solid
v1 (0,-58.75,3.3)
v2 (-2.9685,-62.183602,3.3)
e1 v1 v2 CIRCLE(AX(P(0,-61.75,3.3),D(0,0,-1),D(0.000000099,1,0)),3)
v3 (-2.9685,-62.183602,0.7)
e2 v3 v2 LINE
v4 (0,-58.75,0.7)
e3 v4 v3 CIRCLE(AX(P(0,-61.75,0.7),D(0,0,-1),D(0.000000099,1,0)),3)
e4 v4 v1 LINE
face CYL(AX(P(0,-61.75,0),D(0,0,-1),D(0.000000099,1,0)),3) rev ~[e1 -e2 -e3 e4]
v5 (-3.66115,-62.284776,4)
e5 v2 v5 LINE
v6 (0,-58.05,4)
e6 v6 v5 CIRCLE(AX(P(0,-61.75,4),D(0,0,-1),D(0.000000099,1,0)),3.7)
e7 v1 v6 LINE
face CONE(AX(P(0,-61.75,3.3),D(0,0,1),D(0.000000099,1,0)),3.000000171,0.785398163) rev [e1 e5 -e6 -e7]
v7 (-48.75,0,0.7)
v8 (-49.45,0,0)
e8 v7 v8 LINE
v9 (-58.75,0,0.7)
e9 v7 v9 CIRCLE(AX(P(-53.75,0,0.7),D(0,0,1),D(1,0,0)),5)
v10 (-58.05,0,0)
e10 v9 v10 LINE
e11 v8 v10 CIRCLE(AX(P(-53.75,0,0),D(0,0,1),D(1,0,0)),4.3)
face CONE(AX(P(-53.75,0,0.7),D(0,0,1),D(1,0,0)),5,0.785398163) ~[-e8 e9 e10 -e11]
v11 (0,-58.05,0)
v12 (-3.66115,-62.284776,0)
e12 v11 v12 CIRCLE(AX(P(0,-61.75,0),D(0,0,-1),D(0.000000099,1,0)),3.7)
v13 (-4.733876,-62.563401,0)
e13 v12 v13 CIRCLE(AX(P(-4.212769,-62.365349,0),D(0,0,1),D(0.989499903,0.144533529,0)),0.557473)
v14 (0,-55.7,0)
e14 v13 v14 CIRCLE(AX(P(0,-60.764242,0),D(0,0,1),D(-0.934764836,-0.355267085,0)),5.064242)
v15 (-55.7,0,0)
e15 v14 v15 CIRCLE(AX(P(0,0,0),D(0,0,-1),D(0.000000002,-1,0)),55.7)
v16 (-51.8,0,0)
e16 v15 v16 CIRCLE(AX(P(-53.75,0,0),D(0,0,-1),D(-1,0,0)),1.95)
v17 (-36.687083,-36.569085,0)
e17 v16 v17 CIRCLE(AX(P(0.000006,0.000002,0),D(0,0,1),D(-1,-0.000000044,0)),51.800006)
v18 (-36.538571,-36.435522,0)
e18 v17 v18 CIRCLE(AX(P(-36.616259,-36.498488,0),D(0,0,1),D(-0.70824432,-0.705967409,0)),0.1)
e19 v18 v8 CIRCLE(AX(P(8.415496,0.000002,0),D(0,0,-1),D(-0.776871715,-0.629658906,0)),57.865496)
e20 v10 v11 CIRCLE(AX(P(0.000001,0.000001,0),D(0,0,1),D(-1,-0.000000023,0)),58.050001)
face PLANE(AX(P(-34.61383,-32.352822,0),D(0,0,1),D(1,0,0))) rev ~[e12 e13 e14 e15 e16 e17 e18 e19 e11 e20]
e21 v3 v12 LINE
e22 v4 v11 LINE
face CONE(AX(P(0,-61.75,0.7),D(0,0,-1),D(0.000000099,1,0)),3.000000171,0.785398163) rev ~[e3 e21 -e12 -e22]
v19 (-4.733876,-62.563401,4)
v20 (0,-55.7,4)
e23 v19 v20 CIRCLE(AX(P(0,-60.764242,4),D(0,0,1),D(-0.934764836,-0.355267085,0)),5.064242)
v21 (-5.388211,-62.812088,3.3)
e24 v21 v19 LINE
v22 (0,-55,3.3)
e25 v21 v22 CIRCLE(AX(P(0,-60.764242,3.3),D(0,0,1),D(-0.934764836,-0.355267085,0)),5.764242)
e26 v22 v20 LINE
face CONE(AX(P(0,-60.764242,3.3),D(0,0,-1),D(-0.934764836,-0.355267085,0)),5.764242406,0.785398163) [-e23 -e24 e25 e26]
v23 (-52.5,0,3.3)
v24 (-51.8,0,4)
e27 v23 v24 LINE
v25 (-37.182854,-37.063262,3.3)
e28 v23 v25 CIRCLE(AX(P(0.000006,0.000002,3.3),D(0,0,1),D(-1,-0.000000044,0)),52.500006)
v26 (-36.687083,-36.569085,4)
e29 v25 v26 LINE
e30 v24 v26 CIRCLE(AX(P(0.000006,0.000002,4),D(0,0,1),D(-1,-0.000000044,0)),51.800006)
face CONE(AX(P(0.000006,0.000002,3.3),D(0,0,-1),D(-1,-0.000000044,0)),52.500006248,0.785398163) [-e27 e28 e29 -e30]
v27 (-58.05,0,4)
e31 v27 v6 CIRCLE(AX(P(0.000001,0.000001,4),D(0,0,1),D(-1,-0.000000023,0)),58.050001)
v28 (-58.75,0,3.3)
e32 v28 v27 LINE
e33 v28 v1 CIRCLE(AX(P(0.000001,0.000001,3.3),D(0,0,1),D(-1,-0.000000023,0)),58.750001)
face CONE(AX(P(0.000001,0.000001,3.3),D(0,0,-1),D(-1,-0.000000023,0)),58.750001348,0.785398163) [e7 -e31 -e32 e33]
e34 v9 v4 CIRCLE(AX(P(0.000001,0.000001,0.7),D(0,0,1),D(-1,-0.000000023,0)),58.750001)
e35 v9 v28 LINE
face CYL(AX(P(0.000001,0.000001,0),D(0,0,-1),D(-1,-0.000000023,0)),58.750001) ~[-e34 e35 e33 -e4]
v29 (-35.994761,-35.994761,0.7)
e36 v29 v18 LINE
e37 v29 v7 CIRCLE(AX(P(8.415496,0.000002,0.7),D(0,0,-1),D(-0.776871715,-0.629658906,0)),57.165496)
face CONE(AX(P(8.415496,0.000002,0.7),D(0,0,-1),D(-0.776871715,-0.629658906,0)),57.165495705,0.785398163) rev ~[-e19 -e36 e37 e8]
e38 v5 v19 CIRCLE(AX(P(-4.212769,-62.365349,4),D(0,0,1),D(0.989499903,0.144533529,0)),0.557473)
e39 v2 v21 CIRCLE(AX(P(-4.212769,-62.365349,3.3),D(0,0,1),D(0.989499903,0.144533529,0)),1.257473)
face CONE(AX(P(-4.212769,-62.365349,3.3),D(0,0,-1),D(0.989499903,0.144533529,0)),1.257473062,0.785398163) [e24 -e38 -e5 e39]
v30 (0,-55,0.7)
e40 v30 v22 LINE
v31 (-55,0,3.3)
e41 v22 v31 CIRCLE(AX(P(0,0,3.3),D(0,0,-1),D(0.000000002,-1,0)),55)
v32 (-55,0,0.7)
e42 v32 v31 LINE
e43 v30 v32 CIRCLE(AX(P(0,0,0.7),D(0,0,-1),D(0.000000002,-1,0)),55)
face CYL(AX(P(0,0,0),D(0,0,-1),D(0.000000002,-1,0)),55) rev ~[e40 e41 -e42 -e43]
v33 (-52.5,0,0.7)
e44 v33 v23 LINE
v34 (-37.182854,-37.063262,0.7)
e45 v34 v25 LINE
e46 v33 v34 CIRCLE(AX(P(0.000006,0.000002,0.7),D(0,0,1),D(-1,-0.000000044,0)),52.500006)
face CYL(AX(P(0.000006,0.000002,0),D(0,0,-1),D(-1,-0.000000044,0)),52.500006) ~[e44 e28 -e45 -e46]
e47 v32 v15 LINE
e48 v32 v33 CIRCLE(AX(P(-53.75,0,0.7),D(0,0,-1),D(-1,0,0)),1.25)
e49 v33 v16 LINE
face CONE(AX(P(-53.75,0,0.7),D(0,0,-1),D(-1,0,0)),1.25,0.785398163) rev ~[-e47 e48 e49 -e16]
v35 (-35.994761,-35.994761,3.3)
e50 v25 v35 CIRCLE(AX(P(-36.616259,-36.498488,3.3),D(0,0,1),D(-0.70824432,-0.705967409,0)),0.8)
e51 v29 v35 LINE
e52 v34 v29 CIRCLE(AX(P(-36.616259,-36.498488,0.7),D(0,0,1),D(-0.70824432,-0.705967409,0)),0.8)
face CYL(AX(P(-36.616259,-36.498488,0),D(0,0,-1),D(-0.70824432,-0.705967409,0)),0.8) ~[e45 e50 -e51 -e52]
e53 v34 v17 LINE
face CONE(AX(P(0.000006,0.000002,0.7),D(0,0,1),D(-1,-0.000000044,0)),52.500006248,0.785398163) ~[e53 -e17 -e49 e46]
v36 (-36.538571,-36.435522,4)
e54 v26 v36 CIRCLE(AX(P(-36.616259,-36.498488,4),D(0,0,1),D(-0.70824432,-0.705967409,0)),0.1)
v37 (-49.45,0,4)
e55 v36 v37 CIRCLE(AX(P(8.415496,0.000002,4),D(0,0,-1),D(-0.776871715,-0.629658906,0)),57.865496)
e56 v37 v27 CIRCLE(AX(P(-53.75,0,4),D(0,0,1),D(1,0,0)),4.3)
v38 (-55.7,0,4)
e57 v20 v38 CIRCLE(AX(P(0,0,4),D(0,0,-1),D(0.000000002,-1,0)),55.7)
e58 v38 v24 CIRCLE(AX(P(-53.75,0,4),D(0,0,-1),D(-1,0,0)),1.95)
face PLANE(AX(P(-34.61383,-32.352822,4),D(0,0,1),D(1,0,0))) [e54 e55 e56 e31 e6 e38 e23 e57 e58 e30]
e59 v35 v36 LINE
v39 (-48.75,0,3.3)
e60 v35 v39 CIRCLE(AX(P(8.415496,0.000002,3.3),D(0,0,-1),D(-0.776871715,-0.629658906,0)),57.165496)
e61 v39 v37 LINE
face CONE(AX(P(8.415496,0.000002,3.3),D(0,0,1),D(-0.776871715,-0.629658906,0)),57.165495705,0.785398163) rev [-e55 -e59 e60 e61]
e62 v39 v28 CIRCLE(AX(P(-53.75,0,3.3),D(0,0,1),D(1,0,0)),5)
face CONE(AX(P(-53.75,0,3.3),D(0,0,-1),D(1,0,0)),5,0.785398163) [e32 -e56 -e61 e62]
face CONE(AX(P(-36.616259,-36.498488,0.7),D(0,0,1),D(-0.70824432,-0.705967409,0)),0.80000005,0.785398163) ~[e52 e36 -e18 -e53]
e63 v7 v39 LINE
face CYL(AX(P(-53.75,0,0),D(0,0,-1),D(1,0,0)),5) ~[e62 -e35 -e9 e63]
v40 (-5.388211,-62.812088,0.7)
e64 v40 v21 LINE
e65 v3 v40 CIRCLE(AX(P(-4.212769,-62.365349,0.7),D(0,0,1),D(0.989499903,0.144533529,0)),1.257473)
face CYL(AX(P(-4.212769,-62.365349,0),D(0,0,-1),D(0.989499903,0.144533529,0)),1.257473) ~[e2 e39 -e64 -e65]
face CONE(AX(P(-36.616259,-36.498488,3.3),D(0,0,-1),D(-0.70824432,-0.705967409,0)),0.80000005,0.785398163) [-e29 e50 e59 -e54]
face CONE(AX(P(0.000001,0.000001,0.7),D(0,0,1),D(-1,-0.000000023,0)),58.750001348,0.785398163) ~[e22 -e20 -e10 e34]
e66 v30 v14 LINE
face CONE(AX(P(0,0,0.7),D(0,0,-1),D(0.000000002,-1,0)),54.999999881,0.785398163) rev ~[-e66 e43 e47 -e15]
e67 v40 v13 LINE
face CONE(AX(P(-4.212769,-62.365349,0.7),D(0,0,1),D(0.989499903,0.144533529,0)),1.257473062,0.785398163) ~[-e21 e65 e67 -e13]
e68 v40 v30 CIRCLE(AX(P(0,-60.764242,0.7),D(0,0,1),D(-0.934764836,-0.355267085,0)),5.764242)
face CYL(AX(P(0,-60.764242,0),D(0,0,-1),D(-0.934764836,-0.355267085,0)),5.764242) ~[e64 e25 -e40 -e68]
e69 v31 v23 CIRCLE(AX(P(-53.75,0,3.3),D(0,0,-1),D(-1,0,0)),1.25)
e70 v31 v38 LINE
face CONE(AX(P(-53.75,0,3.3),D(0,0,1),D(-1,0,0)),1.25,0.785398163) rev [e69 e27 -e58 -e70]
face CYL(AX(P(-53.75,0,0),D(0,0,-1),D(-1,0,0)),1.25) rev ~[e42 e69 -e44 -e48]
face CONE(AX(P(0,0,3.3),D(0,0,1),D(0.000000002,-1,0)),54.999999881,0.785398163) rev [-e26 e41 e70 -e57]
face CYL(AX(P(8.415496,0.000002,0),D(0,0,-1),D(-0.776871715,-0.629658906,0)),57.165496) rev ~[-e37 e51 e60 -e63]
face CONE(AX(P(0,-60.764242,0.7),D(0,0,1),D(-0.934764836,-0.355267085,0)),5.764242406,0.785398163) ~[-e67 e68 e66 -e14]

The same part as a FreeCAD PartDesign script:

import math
import FreeCAD as App
import Part
import Sketcher
Q = App.Units.Quantity


def edges_at(feature, points):
    """Names of the edges that pass closest to the given points."""
    edges = feature.Shape.Edges
    near = lambda p: min(range(len(edges)), key=lambda i: edges[i].distToShape(Part.Vertex(*p))[0])
    return sorted({f"Edge{near(p) + 1}" for p in points})

doc = App.newDocument("Part")
body = doc.addObject("PartDesign::Body", "Body")

sketch1 = doc.addObject("Sketcher::SketchObject", "Sketch")
body.addObject(sketch1)
sketch1.AttachmentSupport = (doc.XY_Plane, [""])
sketch1.MapMode = "FlatFace"
sketch1.addGeometry(Part.ArcOfCircle(Part.Circle(App.Vector(0, 0, 0), App.Vector(0, 0, 1), 55), math.radians(180), math.radians(270)), False)
sketch1.addGeometry(Part.ArcOfCircle(Part.Circle(App.Vector(-53.8, 0, 0), App.Vector(0, 0, 1), 1.2), math.radians(0), math.radians(180)), False)
sketch1.addGeometry(Part.ArcOfCircle(Part.Circle(App.Vector(0, 0, 0), App.Vector(0, 0, 1), 52.5), math.radians(-180), math.radians(-135)), False)
sketch1.addGeometry(Part.ArcOfCircle(Part.Circle(App.Vector(-36.6, -36.5, 0), App.Vector(0, 0, 1), 0.8), math.radians(-135), math.radians(39)), False)
sketch1.addGeometry(Part.ArcOfCircle(Part.Circle(App.Vector(8.4, 0, 0), App.Vector(0, 0, 1), 57.2), math.radians(-180), math.radians(-141)), False)
sketch1.addGeometry(Part.ArcOfCircle(Part.Circle(App.Vector(-53.8, 0, 0), App.Vector(0, 0, 1), 5), math.radians(0), math.radians(180)), False)
sketch1.addGeometry(Part.ArcOfCircle(Part.Circle(App.Vector(0, 0, 0), App.Vector(0, 0, 1), 58.8), math.radians(-180), math.radians(-90)), False)
sketch1.addGeometry(Part.ArcOfCircle(Part.Circle(App.Vector(0, -61.8, 0), App.Vector(0, 0, 1), 3), math.radians(-172), math.radians(90)), False)
sketch1.addGeometry(Part.ArcOfCircle(Part.Circle(App.Vector(-4.2, -62.4, 0), App.Vector(0, 0, 1), 1.3), math.radians(8), math.radians(201)), False)
sketch1.addGeometry(Part.ArcOfCircle(Part.Circle(App.Vector(0, -60.8, 0), App.Vector(0, 0, 1), 5.8), math.radians(-159), math.radians(90)), False)
sketch1.addConstraint(Sketcher.Constraint("Tangent", 0, 1, 1, 2))
sketch1.addConstraint(Sketcher.Constraint("Tangent", 1, 1, 2, 1))
sketch1.addConstraint(Sketcher.Constraint("Tangent", 2, 2, 3, 1))
sketch1.addConstraint(Sketcher.Constraint("Tangent", 3, 2, 4, 2))
sketch1.addConstraint(Sketcher.Constraint("Tangent", 4, 1, 5, 1))
sketch1.addConstraint(Sketcher.Constraint("Tangent", 5, 2, 6, 1))
sketch1.addConstraint(Sketcher.Constraint("Tangent", 6, 2, 7, 2))
sketch1.addConstraint(Sketcher.Constraint("Tangent", 7, 1, 8, 1))
sketch1.addConstraint(Sketcher.Constraint("Tangent", 8, 2, 9, 1))
sketch1.addConstraint(Sketcher.Constraint("Tangent", 9, 2, 0, 2))
sketch1.addConstraint(Sketcher.Constraint("Coincident", 0, 3, -1, 1))
sketch1.addConstraint(Sketcher.Constraint("Coincident", 2, 3, -1, 1))
sketch1.addConstraint(Sketcher.Constraint("Coincident", 6, 3, -1, 1))
sketch1.addConstraint(Sketcher.Constraint("Coincident", 5, 3, 1, 3))
sketch1.addConstraint(Sketcher.Constraint("PointOnObject", 1, 3, -1))
sketch1.addConstraint(Sketcher.Constraint("PointOnObject", 7, 3, -2))
sketch1.addConstraint(Sketcher.Constraint("PointOnObject", 9, 3, -2))
sketch1.addConstraint(Sketcher.Constraint("Horizontal", 2, 3, 4, 3))
sketch1.addConstraint(Sketcher.Constraint("Radius", 0, Q("55 mm")))
sketch1.addConstraint(Sketcher.Constraint("Radius", 5, Q("5 mm")))
sketch1.addConstraint(Sketcher.Constraint("Radius", 7, Q("3 mm")))
sketch1.addConstraint(Sketcher.Constraint("Radius", 3, Q("0.8 mm")))
sketch1.addConstraint(Sketcher.Constraint("Radius", 1, Q("1.25 mm")))
sketch1.addConstraint(Sketcher.Constraint("Radius", 4, Q("57.165496 mm")))
sketch1.addConstraint(Sketcher.Constraint("Radius", 8, Q("1.257473 mm")))
sketch1.addConstraint(Sketcher.Constraint("Radius", 9, Q("5.764242 mm")))
pad1 = doc.addObject("PartDesign::Pad", "Pad")
body.addObject(pad1)
pad1.Profile = sketch1
pad1.Length = 4
doc.recompute()

chamfer = doc.addObject("PartDesign::Chamfer", "Chamfer")
body.addObject(chamfer)
chamfer.Base = (pad1, edges_at(pad1, [(2.269, -63.712, 4), (2.269, -63.712, 0)]))
chamfer.Size = 0.7

doc.recompute()
